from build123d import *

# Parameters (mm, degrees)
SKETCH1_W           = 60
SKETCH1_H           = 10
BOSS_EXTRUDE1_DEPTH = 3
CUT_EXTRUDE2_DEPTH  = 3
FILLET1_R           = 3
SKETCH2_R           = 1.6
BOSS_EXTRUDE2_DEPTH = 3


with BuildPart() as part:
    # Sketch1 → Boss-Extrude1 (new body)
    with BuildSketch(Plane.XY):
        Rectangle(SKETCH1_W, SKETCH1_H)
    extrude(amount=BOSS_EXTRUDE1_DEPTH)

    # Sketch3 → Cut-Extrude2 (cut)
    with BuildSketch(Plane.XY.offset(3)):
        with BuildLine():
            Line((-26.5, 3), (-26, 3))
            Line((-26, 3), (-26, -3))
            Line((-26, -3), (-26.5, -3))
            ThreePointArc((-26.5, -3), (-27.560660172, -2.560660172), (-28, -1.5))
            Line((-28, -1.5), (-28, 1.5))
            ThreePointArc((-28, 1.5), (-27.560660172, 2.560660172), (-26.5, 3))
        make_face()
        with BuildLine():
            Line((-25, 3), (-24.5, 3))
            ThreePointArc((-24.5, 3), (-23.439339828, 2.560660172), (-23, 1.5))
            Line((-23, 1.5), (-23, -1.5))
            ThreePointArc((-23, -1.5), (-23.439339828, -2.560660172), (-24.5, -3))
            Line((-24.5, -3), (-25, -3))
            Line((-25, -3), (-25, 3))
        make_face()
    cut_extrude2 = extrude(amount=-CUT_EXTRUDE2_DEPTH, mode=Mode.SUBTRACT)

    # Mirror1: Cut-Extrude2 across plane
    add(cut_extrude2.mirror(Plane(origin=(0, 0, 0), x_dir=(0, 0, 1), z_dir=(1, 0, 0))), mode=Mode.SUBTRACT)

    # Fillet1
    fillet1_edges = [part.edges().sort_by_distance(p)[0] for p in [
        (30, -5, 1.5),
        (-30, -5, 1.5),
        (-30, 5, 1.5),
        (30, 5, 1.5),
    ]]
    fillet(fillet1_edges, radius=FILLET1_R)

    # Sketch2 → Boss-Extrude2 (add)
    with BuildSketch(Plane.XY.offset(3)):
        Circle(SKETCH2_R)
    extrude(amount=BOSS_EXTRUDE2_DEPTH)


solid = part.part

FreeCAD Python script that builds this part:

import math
import FreeCAD as App
import Part
import Sketcher
Q = App.Units.Quantity


def edges_at(feature, points):
    """Names of the edges that pass closest to the given points."""
    edges = feature.Shape.Edges
    near = lambda p: min(range(len(edges)), key=lambda i: edges[i].distToShape(Part.Vertex(*p))[0])
    return sorted({f"Edge{near(p) + 1}" for p in points})

doc = App.newDocument("Part")
body = doc.addObject("PartDesign::Body", "Body")

# Sketch on XY plane
sketch1 = doc.addObject("Sketcher::SketchObject", "Sketch")
body.addObject(sketch1)
sketch1.AttachmentSupport = (doc.XY_Plane, [""])
sketch1.MapMode = "FlatFace"
sketch1.addGeometry([
    Part.LineSegment(App.Vector(-30, 5, 0), App.Vector(-30, -5, 0)),
    Part.LineSegment(App.Vector(-30, -5, 0), App.Vector(30, -5, 0)),
    Part.LineSegment(App.Vector(30, -5, 0), App.Vector(30, 5, 0)),
    Part.LineSegment(App.Vector(30, 5, 0), App.Vector(-30, 5, 0)),
], False)
sketch1.addConstraint([
    Sketcher.Constraint("Coincident", 0, 2, 1, 1),
    Sketcher.Constraint("Coincident", 1, 2, 2, 1),
    Sketcher.Constraint("Coincident", 2, 2, 3, 1),
    Sketcher.Constraint("Coincident", 3, 2, 0, 1),
    Sketcher.Constraint("Vertical", 0),
    Sketcher.Constraint("Horizontal", 1),
    Sketcher.Constraint("Vertical", 2),
    Sketcher.Constraint("Horizontal", 3),
    Sketcher.Constraint("Symmetric", 0, 2, 2, 2, -1, 1),
    Sketcher.Constraint("DistanceX", 1, 1, 1, 2, Q("60 mm")),
    Sketcher.Constraint("DistanceY", 0, 2, 0, 1, Q("10 mm")),
])
pad1 = doc.addObject("PartDesign::Pad", "Pad")
body.addObject(pad1)
pad1.Profile = sketch1
pad1.Length = 3

# Sketch on XY plane
sketch2 = doc.addObject("Sketcher::SketchObject", "Sketch001")
body.addObject(sketch2)
sketch2.AttachmentSupport = (doc.XY_Plane, [""])
sketch2.MapMode = "FlatFace"
sketch2.AttachmentOffset = App.Placement(App.Vector(0, 0, 3), App.Rotation())
sketch2.addGeometry([
    Part.LineSegment(App.Vector(-26, 3, 0), App.Vector(-26.5, 3, 0)),  # 0
    Part.ArcOfCircle(Part.Circle(App.Vector(-26.5, 1.5, 0), App.Vector(0, 0, 1), 1.5), math.radians(90), math.radians(180)),  # 1
    Part.LineSegment(App.Vector(-28, 1.5, 0), App.Vector(-28, -1.5, 0)),  # 2
    Part.ArcOfCircle(Part.Circle(App.Vector(-26.5, -1.5, 0), App.Vector(0, 0, 1), 1.5), math.radians(180), math.radians(270)),  # 3
    Part.LineSegment(App.Vector(-26.5, -3, 0), App.Vector(-26, -3, 0)),  # 4
    Part.LineSegment(App.Vector(-26, -3, 0), App.Vector(-26, 3, 0)),  # 5
    Part.LineSegment(App.Vector(-24.5, 3, 0), App.Vector(-25, 3, 0)),  # 6
    Part.LineSegment(App.Vector(-25, 3, 0), App.Vector(-25, -3, 0)),  # 7
    Part.LineSegment(App.Vector(-25, -3, 0), App.Vector(-24.5, -3, 0)),  # 8
    Part.ArcOfCircle(Part.Circle(App.Vector(-24.5, -1.5, 0), App.Vector(0, 0, 1), 1.5), math.radians(-90), math.radians(0)),  # 9
    Part.LineSegment(App.Vector(-23, -1.5, 0), App.Vector(-23, 1.5, 0)),  # 10
    Part.ArcOfCircle(Part.Circle(App.Vector(-24.5, 1.5, 0), App.Vector(0, 0, 1), 1.5), math.radians(0), math.radians(90)),  # 11
], False)
sketch2.addConstraint([
    Sketcher.Constraint("Tangent", 0, 2, 1, 1),
    Sketcher.Constraint("Tangent", 1, 2, 2, 1),
    Sketcher.Constraint("Tangent", 2, 2, 3, 1),
    Sketcher.Constraint("Tangent", 3, 2, 4, 1),
    Sketcher.Constraint("Coincident", 4, 2, 5, 1),
    Sketcher.Constraint("Coincident", 5, 2, 0, 1),
    Sketcher.Constraint("Coincident", 6, 2, 7, 1),
    Sketcher.Constraint("Coincident", 7, 2, 8, 1),
    Sketcher.Constraint("Tangent", 8, 2, 9, 1),
    Sketcher.Constraint("Tangent", 9, 2, 10, 1),
    Sketcher.Constraint("Tangent", 10, 2, 11, 1),
    Sketcher.Constraint("Tangent", 11, 2, 6, 1),
    Sketcher.Constraint("Horizontal", 0),
    Sketcher.Constraint("Vertical", 2),
    Sketcher.Constraint("Horizontal", 4),
    Sketcher.Constraint("Vertical", 5),
    Sketcher.Constraint("Horizontal", 6),
    Sketcher.Constraint("Vertical", 7),
    Sketcher.Constraint("Horizontal", 8),
    Sketcher.Constraint("Vertical", 10),
    Sketcher.Constraint("Equal", 1, 3),
    Sketcher.Constraint("Equal", 3, 9),
    Sketcher.Constraint("Equal", 9, 11),
    Sketcher.Constraint("Horizontal", 3, 3, 9, 3),
    Sketcher.Constraint("Horizontal", 1, 3, 11, 3),
    Sketcher.Constraint("Equal", 4, 6),
    Sketcher.Constraint("Radius", 1, Q("1.5 mm")),
    Sketcher.Constraint("DistanceY", 2, 2, 2, 1, Q("3 mm")),
    Sketcher.Constraint("DistanceX", 0, 2, 0, 1, Q("0.5 mm")),
    Sketcher.Constraint("DistanceY", -1, 1, 0, 2, Q("3 mm")),
    Sketcher.Constraint("DistanceX", 1, 2, -1, 1, Q("28 mm")),
    Sketcher.Constraint("DistanceX", 6, 2, -1, 1, Q("25 mm")),
])
pocket1 = doc.addObject("PartDesign::Pocket", "Pocket")
body.addObject(pocket1)
pocket1.Profile = sketch2
pocket1.Length = 3
doc.recompute()

mirrored = doc.addObject("PartDesign::Mirrored", "Mirrored")
body.addObject(mirrored)
mirrored.Originals = [pocket1]
mirrored.MirrorPlane = (doc.YZ_Plane, [""])
body.Tip = mirrored
doc.recompute()

fillet = doc.addObject("PartDesign::Fillet", "Fillet")
body.addObject(fillet)
fillet.Base = (mirrored, edges_at(mirrored, [
    (30, -5, 1.5),
    (-30, -5, 1.5),
    (-30, 5, 1.5),
    (30, 5, 1.5),
]))
fillet.Radius = 3

# Sketch on XY plane
sketch3 = doc.addObject("Sketcher::SketchObject", "Sketch002")
body.addObject(sketch3)
sketch3.AttachmentSupport = (doc.XY_Plane, [""])
sketch3.MapMode = "FlatFace"
sketch3.AttachmentOffset = App.Placement(App.Vector(0, 0, 3), App.Rotation())
sketch3.addGeometry(Part.Circle(App.Vector(0, 0, 0), App.Vector(0, 0, 1), 1.6), False)
sketch3.addConstraint([
    Sketcher.Constraint("Coincident", 0, 3, -1, 1),
    Sketcher.Constraint("Diameter", 0, Q("3.2 mm")),
])
pad2 = doc.addObject("PartDesign::Pad", "Pad001")
body.addObject(pad2)
pad2.Profile = sketch3
pad2.Length = 3

doc.recompute()
